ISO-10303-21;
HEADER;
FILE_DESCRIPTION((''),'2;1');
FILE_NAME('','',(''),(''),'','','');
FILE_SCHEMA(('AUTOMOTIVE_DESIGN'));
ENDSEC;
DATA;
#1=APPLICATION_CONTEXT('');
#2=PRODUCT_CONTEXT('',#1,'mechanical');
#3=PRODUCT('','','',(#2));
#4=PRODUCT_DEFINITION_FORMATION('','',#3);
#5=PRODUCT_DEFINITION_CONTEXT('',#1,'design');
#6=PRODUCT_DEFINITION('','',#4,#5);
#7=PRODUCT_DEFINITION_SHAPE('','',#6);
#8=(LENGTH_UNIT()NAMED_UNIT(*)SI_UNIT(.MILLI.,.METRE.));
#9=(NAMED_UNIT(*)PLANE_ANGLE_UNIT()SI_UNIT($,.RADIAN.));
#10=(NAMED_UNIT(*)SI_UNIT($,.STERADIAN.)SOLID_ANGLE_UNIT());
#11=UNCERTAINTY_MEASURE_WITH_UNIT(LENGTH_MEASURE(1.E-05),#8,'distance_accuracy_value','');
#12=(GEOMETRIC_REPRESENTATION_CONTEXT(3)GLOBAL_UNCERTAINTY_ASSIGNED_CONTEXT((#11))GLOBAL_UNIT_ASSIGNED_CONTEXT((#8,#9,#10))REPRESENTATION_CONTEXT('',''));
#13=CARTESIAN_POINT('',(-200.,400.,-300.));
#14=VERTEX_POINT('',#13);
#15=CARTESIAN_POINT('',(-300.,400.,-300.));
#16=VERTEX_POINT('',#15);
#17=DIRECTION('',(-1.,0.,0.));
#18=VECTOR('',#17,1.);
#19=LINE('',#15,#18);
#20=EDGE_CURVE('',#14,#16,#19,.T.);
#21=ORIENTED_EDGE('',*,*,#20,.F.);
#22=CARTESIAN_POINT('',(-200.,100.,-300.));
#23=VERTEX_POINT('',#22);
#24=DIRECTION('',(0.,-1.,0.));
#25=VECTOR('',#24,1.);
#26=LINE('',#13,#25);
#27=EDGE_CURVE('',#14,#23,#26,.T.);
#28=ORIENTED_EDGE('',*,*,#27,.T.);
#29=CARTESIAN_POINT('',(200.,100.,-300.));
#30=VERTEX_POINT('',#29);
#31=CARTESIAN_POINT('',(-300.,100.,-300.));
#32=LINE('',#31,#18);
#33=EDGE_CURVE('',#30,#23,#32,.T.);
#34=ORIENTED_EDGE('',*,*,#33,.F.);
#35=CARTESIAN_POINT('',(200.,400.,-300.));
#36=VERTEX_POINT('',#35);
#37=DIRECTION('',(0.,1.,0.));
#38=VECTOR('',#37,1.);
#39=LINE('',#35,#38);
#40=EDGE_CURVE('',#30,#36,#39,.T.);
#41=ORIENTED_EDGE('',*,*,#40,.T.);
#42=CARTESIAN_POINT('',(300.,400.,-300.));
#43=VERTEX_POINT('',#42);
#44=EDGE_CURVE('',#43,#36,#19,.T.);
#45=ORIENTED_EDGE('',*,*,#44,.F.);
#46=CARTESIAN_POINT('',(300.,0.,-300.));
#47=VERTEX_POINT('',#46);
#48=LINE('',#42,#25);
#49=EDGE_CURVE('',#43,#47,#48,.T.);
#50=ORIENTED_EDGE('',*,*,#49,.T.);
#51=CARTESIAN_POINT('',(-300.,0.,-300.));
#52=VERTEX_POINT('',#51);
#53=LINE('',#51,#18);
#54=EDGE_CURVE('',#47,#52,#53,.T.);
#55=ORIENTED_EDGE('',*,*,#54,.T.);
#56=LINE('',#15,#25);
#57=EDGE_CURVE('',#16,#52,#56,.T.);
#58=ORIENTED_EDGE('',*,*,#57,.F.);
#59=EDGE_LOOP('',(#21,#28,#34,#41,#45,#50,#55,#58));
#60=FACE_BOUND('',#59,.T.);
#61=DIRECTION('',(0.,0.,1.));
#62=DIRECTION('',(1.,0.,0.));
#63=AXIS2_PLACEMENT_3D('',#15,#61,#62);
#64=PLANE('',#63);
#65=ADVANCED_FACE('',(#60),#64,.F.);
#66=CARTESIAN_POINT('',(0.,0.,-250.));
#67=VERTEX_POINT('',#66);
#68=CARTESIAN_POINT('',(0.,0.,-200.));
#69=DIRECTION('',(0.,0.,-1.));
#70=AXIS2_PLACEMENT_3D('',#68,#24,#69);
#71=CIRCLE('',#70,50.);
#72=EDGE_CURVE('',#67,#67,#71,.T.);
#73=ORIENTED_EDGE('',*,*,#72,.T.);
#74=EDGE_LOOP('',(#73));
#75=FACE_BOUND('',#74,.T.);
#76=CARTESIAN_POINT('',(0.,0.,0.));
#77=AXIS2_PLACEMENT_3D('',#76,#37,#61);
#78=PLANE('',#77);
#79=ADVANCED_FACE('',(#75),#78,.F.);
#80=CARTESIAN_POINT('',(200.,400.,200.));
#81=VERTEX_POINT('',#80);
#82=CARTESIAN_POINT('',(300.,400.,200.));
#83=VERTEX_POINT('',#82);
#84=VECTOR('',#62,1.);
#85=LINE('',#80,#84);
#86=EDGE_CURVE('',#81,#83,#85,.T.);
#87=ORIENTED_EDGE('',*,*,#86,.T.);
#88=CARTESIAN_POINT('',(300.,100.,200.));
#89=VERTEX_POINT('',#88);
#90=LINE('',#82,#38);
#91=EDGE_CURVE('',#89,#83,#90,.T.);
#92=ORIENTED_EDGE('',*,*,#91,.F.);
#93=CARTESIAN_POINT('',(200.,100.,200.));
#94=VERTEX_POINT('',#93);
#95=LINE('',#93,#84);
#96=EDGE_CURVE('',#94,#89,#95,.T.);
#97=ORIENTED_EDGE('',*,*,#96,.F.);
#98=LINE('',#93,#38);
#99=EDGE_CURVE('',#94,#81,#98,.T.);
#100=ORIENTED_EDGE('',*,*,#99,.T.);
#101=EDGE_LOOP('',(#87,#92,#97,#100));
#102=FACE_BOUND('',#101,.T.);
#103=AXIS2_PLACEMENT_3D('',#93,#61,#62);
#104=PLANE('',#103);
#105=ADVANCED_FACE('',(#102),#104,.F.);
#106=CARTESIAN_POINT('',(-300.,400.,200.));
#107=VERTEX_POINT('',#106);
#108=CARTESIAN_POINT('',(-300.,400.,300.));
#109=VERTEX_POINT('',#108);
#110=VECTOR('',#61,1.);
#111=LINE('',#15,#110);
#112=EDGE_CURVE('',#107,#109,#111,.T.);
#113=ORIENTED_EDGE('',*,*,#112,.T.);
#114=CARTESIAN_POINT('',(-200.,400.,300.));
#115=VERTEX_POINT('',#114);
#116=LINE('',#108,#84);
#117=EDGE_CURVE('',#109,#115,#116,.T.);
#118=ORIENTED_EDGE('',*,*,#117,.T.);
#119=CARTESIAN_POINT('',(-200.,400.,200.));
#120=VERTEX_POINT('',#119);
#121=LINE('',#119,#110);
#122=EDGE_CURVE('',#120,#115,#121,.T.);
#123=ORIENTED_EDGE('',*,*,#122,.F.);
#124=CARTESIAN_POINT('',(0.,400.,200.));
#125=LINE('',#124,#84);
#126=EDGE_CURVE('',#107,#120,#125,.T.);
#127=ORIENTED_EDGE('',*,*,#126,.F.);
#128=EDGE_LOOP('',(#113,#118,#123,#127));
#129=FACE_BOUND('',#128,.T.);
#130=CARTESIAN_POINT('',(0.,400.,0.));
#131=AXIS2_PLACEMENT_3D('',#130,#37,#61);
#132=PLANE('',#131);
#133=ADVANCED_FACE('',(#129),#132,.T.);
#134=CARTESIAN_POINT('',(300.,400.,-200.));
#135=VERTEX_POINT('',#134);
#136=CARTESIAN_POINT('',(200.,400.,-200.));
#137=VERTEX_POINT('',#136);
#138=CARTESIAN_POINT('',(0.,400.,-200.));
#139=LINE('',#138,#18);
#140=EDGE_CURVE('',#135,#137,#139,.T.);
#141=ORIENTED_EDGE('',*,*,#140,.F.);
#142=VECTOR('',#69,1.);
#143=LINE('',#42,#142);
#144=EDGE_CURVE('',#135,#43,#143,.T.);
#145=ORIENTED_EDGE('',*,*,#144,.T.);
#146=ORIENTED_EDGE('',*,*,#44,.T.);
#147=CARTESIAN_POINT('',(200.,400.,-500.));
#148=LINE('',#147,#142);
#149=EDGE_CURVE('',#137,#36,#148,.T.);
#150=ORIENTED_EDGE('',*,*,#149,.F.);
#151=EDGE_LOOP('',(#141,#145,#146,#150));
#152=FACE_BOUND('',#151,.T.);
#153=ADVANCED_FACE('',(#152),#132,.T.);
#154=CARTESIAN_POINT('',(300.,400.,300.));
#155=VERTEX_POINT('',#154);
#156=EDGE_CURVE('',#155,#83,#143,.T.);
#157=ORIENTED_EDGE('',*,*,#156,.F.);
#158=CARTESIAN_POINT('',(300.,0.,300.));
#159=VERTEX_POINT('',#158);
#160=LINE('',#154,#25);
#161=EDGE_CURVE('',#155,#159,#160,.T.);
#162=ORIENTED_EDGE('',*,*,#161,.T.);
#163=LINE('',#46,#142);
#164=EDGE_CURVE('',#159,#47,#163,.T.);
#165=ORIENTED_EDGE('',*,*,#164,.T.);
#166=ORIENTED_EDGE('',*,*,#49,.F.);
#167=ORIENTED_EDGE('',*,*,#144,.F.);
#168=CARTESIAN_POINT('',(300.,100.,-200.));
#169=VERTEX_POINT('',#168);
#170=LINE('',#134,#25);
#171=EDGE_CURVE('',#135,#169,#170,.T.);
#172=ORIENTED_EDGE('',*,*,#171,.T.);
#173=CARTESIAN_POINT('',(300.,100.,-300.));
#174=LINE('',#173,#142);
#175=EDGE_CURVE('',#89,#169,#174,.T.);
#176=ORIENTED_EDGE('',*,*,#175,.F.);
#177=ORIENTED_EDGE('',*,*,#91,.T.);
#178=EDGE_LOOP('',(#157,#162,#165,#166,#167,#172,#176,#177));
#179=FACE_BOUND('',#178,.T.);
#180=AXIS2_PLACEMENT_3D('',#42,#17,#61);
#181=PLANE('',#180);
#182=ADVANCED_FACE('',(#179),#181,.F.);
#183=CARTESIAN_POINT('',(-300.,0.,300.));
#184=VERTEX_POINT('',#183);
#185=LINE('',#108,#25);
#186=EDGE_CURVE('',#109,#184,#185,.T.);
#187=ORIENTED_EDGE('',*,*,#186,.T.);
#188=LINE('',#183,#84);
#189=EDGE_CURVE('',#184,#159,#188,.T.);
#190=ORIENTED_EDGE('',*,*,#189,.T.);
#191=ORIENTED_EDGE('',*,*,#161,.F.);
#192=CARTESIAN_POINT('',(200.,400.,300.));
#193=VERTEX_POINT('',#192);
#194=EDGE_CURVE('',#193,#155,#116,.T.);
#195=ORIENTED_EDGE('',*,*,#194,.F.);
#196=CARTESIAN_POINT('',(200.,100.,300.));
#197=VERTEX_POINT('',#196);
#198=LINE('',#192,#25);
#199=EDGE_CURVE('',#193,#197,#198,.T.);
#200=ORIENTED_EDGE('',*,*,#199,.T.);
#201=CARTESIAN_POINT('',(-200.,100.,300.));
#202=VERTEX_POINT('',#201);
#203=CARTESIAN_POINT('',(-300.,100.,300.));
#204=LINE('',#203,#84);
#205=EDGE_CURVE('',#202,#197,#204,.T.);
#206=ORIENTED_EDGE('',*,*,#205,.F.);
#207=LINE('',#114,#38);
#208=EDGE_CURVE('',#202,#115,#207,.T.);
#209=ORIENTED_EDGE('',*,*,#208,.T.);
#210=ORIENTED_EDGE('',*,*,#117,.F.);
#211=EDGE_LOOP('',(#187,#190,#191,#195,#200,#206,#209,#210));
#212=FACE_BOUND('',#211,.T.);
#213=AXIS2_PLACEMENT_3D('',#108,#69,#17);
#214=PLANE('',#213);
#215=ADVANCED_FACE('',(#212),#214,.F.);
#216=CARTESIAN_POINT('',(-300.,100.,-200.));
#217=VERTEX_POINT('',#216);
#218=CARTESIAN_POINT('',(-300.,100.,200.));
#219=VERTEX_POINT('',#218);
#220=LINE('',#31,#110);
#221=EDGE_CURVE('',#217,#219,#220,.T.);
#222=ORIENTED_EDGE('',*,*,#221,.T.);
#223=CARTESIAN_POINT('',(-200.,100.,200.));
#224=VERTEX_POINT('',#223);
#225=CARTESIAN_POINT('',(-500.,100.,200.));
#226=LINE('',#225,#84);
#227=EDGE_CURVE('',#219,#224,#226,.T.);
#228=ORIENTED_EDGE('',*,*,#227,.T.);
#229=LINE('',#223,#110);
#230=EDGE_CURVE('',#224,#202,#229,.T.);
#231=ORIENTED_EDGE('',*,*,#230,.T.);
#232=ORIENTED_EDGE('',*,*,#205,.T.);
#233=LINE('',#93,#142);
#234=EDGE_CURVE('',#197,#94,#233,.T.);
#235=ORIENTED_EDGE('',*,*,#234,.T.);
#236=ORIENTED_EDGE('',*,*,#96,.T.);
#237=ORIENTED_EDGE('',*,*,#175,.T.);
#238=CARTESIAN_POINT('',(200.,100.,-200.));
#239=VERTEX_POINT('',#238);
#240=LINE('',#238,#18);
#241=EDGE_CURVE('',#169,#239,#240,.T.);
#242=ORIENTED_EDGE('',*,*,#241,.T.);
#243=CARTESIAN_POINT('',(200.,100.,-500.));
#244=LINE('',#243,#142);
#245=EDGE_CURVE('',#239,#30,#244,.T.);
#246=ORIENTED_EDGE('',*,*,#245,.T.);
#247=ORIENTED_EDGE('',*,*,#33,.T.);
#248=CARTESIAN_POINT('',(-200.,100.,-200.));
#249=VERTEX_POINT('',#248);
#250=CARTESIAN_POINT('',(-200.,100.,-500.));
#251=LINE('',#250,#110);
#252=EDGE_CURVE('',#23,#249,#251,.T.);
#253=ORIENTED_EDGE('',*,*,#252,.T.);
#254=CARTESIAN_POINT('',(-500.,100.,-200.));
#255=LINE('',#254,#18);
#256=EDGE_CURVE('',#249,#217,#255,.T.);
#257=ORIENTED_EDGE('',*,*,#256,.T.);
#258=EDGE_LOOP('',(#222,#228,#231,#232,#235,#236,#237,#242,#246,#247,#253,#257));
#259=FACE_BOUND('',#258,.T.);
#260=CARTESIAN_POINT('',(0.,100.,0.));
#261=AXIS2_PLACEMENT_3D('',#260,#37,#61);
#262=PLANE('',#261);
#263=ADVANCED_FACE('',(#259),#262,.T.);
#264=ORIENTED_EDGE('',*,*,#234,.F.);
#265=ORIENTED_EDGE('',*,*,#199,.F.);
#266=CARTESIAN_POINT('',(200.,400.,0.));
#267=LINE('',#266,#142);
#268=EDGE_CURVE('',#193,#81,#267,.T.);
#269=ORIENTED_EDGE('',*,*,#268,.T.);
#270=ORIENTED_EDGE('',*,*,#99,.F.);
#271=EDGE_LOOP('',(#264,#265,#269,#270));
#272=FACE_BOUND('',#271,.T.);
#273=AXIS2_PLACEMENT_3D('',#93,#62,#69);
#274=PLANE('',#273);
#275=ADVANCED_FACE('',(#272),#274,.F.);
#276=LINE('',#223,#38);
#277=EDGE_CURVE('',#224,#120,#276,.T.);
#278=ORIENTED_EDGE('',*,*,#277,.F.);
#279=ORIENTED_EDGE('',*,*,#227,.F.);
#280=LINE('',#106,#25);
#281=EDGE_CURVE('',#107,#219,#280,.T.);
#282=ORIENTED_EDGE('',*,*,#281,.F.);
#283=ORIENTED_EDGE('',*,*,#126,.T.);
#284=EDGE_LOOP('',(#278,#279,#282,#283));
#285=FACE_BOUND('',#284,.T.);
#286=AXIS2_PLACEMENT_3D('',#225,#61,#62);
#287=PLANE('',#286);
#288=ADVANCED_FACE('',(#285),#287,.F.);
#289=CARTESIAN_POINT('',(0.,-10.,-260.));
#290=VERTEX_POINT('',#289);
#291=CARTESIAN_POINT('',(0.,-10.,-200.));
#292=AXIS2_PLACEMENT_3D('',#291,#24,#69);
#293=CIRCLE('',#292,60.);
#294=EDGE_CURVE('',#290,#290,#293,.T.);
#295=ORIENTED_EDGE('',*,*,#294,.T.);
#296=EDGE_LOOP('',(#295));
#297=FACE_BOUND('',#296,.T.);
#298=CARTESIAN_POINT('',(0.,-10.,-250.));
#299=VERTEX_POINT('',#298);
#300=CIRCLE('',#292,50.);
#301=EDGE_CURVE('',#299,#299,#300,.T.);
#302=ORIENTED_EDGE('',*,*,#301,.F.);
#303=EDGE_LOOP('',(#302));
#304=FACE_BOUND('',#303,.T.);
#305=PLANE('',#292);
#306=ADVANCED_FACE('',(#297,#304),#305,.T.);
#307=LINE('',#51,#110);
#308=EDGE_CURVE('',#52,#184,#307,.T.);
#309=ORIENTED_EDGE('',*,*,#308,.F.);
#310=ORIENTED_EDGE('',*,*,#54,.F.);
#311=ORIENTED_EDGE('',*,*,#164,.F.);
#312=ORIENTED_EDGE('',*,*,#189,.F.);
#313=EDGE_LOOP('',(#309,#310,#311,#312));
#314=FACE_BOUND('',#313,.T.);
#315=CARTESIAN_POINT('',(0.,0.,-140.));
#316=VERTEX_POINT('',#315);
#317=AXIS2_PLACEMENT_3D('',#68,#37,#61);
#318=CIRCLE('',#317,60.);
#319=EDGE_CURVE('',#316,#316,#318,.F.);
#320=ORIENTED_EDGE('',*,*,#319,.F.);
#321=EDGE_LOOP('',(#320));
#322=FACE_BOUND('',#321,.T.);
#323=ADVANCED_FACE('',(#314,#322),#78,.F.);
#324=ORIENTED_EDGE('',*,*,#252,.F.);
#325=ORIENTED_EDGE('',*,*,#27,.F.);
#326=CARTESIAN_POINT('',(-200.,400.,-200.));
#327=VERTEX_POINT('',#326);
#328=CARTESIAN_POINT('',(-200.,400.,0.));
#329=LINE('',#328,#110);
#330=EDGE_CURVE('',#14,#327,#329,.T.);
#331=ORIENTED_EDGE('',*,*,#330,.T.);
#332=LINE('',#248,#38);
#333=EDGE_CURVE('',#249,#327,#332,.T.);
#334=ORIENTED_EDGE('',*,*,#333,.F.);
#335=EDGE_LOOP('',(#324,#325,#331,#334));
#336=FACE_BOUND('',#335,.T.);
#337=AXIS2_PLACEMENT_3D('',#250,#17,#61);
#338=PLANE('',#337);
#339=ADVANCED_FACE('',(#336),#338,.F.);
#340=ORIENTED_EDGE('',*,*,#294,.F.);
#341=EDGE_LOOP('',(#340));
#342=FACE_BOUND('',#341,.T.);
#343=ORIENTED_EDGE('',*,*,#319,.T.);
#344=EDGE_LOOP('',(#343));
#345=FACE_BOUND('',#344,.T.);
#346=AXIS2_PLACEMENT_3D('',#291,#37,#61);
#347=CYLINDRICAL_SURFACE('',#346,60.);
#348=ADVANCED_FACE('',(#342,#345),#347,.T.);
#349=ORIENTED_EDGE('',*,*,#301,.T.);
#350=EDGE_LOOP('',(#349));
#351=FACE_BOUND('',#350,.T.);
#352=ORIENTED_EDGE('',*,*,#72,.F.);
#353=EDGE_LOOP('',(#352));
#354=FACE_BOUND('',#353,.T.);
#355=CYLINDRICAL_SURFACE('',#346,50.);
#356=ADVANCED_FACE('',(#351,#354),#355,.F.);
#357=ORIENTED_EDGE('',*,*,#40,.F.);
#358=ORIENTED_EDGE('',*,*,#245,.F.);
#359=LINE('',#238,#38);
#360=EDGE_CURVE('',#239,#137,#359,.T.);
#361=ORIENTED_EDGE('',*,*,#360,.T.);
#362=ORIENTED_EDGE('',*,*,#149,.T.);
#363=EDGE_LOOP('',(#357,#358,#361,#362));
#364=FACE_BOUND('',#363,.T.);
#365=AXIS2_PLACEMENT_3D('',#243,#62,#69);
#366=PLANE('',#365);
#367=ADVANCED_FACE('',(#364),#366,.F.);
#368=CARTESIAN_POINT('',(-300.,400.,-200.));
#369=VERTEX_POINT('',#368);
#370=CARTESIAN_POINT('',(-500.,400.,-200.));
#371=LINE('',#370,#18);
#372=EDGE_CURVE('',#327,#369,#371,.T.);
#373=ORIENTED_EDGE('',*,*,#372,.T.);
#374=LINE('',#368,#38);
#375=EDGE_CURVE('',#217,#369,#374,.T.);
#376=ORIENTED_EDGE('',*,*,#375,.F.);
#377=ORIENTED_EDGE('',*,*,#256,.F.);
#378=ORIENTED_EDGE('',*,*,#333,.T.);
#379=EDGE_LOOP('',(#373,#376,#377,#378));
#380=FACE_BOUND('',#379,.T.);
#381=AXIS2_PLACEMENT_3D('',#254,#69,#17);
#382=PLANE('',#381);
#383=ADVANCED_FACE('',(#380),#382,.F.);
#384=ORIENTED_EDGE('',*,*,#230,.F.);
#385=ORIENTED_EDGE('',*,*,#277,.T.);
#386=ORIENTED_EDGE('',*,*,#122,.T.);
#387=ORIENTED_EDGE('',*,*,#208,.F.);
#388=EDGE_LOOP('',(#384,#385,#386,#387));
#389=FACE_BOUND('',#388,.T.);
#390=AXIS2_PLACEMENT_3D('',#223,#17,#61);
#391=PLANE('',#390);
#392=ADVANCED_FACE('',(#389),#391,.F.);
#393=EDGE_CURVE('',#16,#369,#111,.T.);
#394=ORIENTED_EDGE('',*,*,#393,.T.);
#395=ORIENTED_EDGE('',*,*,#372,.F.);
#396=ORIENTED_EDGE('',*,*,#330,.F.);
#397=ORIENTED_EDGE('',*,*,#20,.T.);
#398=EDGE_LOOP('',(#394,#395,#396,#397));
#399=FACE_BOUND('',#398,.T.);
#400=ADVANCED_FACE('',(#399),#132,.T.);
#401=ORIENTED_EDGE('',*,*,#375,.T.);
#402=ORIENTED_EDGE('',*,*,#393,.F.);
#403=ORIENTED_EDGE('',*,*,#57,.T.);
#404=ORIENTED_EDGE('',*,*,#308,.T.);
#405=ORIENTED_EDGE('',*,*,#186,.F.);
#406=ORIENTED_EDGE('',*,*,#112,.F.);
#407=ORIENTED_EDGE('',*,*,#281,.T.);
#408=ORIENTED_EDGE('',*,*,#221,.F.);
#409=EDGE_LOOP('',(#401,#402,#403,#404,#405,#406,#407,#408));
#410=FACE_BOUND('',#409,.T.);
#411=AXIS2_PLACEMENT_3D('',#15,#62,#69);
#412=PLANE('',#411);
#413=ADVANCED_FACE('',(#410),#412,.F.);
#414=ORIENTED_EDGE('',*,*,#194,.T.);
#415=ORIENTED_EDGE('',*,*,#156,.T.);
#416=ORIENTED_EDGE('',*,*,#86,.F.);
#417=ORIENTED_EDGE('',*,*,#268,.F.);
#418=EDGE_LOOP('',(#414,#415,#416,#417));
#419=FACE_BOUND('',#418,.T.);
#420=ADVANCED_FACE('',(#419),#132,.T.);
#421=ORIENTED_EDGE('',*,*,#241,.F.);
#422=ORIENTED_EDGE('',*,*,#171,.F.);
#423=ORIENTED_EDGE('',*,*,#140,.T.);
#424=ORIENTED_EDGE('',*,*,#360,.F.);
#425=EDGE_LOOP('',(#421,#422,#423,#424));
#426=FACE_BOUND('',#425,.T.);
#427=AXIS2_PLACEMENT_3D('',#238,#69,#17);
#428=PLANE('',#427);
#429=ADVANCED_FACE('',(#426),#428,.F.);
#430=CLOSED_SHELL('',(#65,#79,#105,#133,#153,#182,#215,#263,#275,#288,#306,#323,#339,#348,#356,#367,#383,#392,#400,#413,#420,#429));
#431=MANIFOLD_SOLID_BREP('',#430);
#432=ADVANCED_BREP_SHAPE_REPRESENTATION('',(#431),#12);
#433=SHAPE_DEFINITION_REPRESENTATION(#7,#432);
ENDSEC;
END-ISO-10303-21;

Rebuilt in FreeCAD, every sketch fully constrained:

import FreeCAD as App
import Part
import Sketcher
from FreeCAD import Vector
Q = App.Units.Quantity


def add_polygon(sketch, points):
    """Adds a closed chain of lines whose ends are joined by coincident constraints."""
    first, n = sketch.GeometryCount, len(points)
    for a, b in zip(points, points[1:] + points[:1]):
        sketch.addGeometry(Part.LineSegment(App.Vector(*a, 0), App.Vector(*b, 0)), False)
    for i in range(n):
        sketch.addConstraint(Sketcher.Constraint("Coincident", first + i, 2, first + (i + 1) % n, 1))

doc = App.newDocument("Part")
params = doc.addObject("Spreadsheet::Sheet", "Params")
for row, (alias, value) in enumerate([
    ("sketch1_width", "600 mm"),
    ("pad1_length", "400 mm"),
    ("sketch2_width", "300 mm"),
    ("sketch2_width2", "400 mm"),
    ("pocket1_length", "300 mm"),
    ("sketch3_diameter", "120 mm"),
    ("sketch3_diameter2", "100 mm"),
    ("pad2_length", "10 mm"),
], start=1):
    params.set(f"A{row}", alias)
    params.set(f"B{row}", "=" + value)
    params.setAlias(f"B{row}", alias)

body = doc.addObject("PartDesign::Body", "Body")

sketch1 = body.newObject("Sketcher::SketchObject", "Sketch")
sketch1.AttachmentSupport = (doc.getObject("XZ_Plane"), [""])
sketch1.MapMode = "FlatFace"
add_polygon(sketch1, [(-300, -300), (-300, 300), (300, 300), (300, -300)])
sketch1.addConstraint([
    Sketcher.Constraint("Vertical", 0),
    Sketcher.Constraint("Horizontal", 1),
    Sketcher.Constraint("Vertical", 2),
    Sketcher.Constraint("Horizontal", 3),
    Sketcher.Constraint("Symmetric", 0, 2, 2, 2, -1, 1),
    Sketcher.Constraint("Equal", 3, 0),
    Sketcher.Constraint("DistanceX", 1, 1, 1, 2, Q("600 mm")),
])
sketch1.setExpression("Constraints[10]", "Params.sketch1_width")
pad1 = body.newObject("PartDesign::Pad", "Pad")
pad1.Profile = sketch1
pad1.setExpression("Length", "Params.pad1_length")
pad1.Reversed = True

sketch2 = body.newObject("Sketcher::SketchObject", "Sketch001")
sketch2.AttachmentSupport = (doc.getObject("XZ_Plane"), [""])
sketch2.MapMode = "FlatFace"
sketch2.AttachmentOffset = App.Placement(Vector(0, 0, -400), App.Rotation())
add_polygon(sketch2, [(-200, -200), (-500, -200), (-500, 200), (-200, 200), (-200, 500), (200, 500), (200, 200), (500, 200), (500, -200), (200, -200), (200, -500), (-200, -500)])
sketch2.addConstraint([
    Sketcher.Constraint("Horizontal", 0),
    Sketcher.Constraint("Vertical", 1),
    Sketcher.Constraint("Horizontal", 2),
    Sketcher.Constraint("Vertical", 3),
    Sketcher.Constraint("Horizontal", 4),
    Sketcher.Constraint("Vertical", 5),
    Sketcher.Constraint("Horizontal", 6),
    Sketcher.Constraint("Vertical", 7),
    Sketcher.Constraint("Horizontal", 8),
    Sketcher.Constraint("Vertical", 9),
    Sketcher.Constraint("Horizontal", 10),
    Sketcher.Constraint("Vertical", 11),
    Sketcher.Constraint("Symmetric", 0, 2, 6, 2, -1, 1),
    Sketcher.Constraint("Symmetric", 2, 2, 8, 2, -1, 1),
    Sketcher.Constraint("Symmetric", 4, 2, 10, 2, -1, 1),
    Sketcher.Constraint("Symmetric", 2, 2, 5, 2, -2),
    Sketcher.Constraint("Equal", 10, 1),
    Sketcher.Constraint("Equal", 8, 3),
    Sketcher.Constraint("DistanceX", 0, 2, 0, 1, Q("300 mm")),
    Sketcher.Constraint("DistanceX", 4, 1, 4, 2, Q("400 mm")),
])
sketch2.setExpression("Constraints[30]", "Params.sketch2_width")
sketch2.setExpression("Constraints[31]", "Params.sketch2_width2")
pocket1 = body.newObject("PartDesign::Pocket", "Pocket")
pocket1.Profile = sketch2
pocket1.setExpression("Length", "Params.pocket1_length")
pocket1.Reversed = True

sketch3 = body.newObject("Sketcher::SketchObject", "Sketch002")
sketch3.AttachmentSupport = (doc.getObject("XZ_Plane"), [""])
sketch3.MapMode = "FlatFace"
sketch3.addGeometry([
    Part.Circle(Vector(0, -200, 0), Vector(0, 0, 1), 60),
    Part.Circle(Vector(0, -200, 0), Vector(0, 0, 1), 50),
], False)
sketch3.addConstraint([
    Sketcher.Constraint("Coincident", 1, 3, 0, 3),
    Sketcher.Constraint("PointOnObject", 0, 3, -2),
    Sketcher.Constraint("Diameter", 0, Q("120 mm")),
    Sketcher.Constraint("Diameter", 1, Q("100 mm")),
    Sketcher.Constraint("DistanceY", 0, 3, -1, 1, Q("200 mm")),
])
sketch3.setExpression("Constraints[2]", "Params.sketch3_diameter")
sketch3.setExpression("Constraints[3]", "Params.sketch3_diameter2")
pad2 = body.newObject("PartDesign::Pad", "Pad001")
pad2.Profile = sketch3
pad2.setExpression("Length", "Params.pad2_length")

doc.recompute()
